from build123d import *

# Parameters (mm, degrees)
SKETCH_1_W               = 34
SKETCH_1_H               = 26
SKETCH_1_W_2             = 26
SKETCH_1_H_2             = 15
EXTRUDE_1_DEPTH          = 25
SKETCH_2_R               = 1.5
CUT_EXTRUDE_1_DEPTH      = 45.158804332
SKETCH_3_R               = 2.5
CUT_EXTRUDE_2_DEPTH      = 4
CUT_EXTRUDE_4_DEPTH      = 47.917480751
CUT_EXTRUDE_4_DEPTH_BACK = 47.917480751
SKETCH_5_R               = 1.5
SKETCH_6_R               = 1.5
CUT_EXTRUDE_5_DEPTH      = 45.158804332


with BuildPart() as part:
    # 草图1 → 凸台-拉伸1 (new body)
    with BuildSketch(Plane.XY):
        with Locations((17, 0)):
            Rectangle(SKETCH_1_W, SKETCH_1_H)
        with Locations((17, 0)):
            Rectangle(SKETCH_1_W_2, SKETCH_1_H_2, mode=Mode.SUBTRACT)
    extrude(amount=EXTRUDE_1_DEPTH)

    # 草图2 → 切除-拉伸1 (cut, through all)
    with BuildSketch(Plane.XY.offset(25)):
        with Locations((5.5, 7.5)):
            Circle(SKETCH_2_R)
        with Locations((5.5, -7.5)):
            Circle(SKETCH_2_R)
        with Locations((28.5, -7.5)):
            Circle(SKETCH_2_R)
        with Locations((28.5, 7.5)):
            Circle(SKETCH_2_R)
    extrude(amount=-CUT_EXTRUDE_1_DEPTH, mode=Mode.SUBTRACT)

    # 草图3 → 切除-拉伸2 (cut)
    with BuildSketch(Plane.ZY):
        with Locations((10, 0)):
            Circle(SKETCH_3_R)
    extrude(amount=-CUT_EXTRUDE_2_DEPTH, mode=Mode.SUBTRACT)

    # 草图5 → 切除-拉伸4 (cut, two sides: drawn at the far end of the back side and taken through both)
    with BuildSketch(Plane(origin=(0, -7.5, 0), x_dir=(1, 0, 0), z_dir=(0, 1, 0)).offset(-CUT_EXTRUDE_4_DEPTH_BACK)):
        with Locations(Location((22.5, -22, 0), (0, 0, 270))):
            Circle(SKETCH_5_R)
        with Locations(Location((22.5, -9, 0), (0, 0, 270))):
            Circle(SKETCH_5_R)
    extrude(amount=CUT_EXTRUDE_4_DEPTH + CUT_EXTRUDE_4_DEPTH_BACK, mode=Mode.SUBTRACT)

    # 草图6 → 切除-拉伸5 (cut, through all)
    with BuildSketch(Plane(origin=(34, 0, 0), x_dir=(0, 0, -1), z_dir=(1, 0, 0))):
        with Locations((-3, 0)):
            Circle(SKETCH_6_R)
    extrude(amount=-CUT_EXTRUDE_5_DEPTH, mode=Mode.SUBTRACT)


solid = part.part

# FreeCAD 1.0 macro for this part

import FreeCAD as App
import Part
import Sketcher
from FreeCAD import Vector
Q = App.Units.Quantity

doc = App.newDocument("Part")
body = doc.addObject("PartDesign::Body", "Body")

# Sketch on XY plane
sketch1 = body.newObject("Sketcher::SketchObject", "Sketch")
sketch1.AttachmentSupport = (doc.getObject("XY_Plane"), [""])
sketch1.MapMode = "FlatFace"
sketch1.addGeometry(Part.LineSegment(Vector(0, 13, 0), Vector(0, -13, 0)), False)
sketch1.addGeometry(Part.LineSegment(Vector(0, -13, 0), Vector(34, -13, 0)), False)
sketch1.addGeometry(Part.LineSegment(Vector(34, -13, 0), Vector(34, 13, 0)), False)
sketch1.addGeometry(Part.LineSegment(Vector(34, 13, 0), Vector(0, 13, 0)), False)
sketch1.addGeometry(Part.LineSegment(Vector(30, -7.5, 0), Vector(4, -7.5, 0)), False)
sketch1.addGeometry(Part.LineSegment(Vector(4, -7.5, 0), Vector(4, 7.5, 0)), False)
sketch1.addGeometry(Part.LineSegment(Vector(4, 7.5, 0), Vector(30, 7.5, 0)), False)
sketch1.addGeometry(Part.LineSegment(Vector(30, 7.5, 0), Vector(30, -7.5, 0)), False)
sketch1.addConstraint(Sketcher.Constraint("Coincident", 0, 2, 1, 1))
sketch1.addConstraint(Sketcher.Constraint("Coincident", 1, 2, 2, 1))
sketch1.addConstraint(Sketcher.Constraint("Coincident", 2, 2, 3, 1))
sketch1.addConstraint(Sketcher.Constraint("Coincident", 3, 2, 0, 1))
sketch1.addConstraint(Sketcher.Constraint("Coincident", 4, 2, 5, 1))
sketch1.addConstraint(Sketcher.Constraint("Coincident", 5, 2, 6, 1))
sketch1.addConstraint(Sketcher.Constraint("Coincident", 6, 2, 7, 1))
sketch1.addConstraint(Sketcher.Constraint("Coincident", 7, 2, 4, 1))
sketch1.addConstraint(Sketcher.Constraint("Vertical", 0))
sketch1.addConstraint(Sketcher.Constraint("Horizontal", 1))
sketch1.addConstraint(Sketcher.Constraint("Vertical", 2))
sketch1.addConstraint(Sketcher.Constraint("Horizontal", 3))
sketch1.addConstraint(Sketcher.Constraint("Horizontal", 4))
sketch1.addConstraint(Sketcher.Constraint("Vertical", 5))
sketch1.addConstraint(Sketcher.Constraint("Horizontal", 6))
sketch1.addConstraint(Sketcher.Constraint("Vertical", 7))
sketch1.addConstraint(Sketcher.Constraint("Symmetric", 0, 2, 3, 2, -1, 1))
sketch1.addConstraint(Sketcher.Constraint("Equal", 6, 0))
sketch1.addConstraint(Sketcher.Constraint("DistanceX", 1, 1, 1, 2, Q("34 mm")))
sketch1.addConstraint(Sketcher.Constraint("DistanceX", 4, 2, 4, 1, Q("26 mm")))
sketch1.addConstraint(Sketcher.Constraint("DistanceY", 5, 1, 5, 2, Q("15 mm")))
sketch1.addConstraint(Sketcher.Constraint("DistanceX", -1, 1, 4, 2, Q("4 mm")))
sketch1.addConstraint(Sketcher.Constraint("DistanceY", 4, 2, -1, 1, Q("7.5 mm")))
pad1 = body.newObject("PartDesign::Pad", "Pad")
pad1.Profile = sketch1
pad1.Length = 25

# Sketch on XY plane
sketch2 = body.newObject("Sketcher::SketchObject", "Sketch001")
sketch2.AttachmentSupport = (doc.getObject("XY_Plane"), [""])
sketch2.MapMode = "FlatFace"
sketch2.AttachmentOffset = App.Placement(Vector(0, 0, 25), App.Rotation())
sketch2.addGeometry(Part.Circle(Vector(5.5, 7.5, 0), Vector(0, 0, 1), 1.5), False)
sketch2.addGeometry(Part.Circle(Vector(5.5, -7.5, 0), Vector(0, 0, 1), 1.5), False)
sketch2.addGeometry(Part.Circle(Vector(28.5, -7.5, 0), Vector(0, 0, 1), 1.5), False)
sketch2.addGeometry(Part.Circle(Vector(28.5, 7.5, 0), Vector(0, 0, 1), 1.5), False)
sketch2.addConstraint(Sketcher.Constraint("Equal", 0, 1))
sketch2.addConstraint(Sketcher.Constraint("Equal", 1, 2))
sketch2.addConstraint(Sketcher.Constraint("Equal", 2, 3))
sketch2.addConstraint(Sketcher.Constraint("Symmetric", 0, 3, 1, 3, -1))
sketch2.addConstraint(Sketcher.Constraint("Symmetric", 2, 3, 3, 3, -1))
sketch2.addConstraint(Sketcher.Constraint("Horizontal", 1, 3, 2, 3))
sketch2.addConstraint(Sketcher.Constraint("Diameter", 0, Q("3 mm")))
sketch2.addConstraint(Sketcher.Constraint("DistanceY", 1, 3, 0, 3, Q("15 mm")))
sketch2.addConstraint(Sketcher.Constraint("DistanceX", 1, 3, 2, 3, Q("23 mm")))
sketch2.addConstraint(Sketcher.Constraint("DistanceX", -1, 1, 0, 3, Q("5.5 mm")))
pocket1 = body.newObject("PartDesign::Pocket", "Pocket")
pocket1.Profile = sketch2
pocket1.Type = "ThroughAll"

# Sketch on YZ plane
sketch3 = body.newObject("Sketcher::SketchObject", "Sketch002")
sketch3.AttachmentSupport = (doc.getObject("YZ_Plane"), [""])
sketch3.MapMode = "FlatFace"
sketch3.addGeometry(Part.Circle(Vector(0, 10, 0), Vector(0, 0, 1), 2.5), False)
sketch3.addConstraint(Sketcher.Constraint("PointOnObject", 0, 3, -2))
sketch3.addConstraint(Sketcher.Constraint("Diameter", 0, Q("5 mm")))
sketch3.addConstraint(Sketcher.Constraint("DistanceY", -1, 1, 0, 3, Q("10 mm")))
pocket2 = body.newObject("PartDesign::Pocket", "Pocket001")
pocket2.Profile = sketch3
pocket2.Length = 4
pocket2.Reversed = True

# Sketch on XZ plane
sketch4 = body.newObject("Sketcher::SketchObject", "Sketch003")
sketch4.AttachmentSupport = (doc.getObject("XZ_Plane"), [""])
sketch4.MapMode = "FlatFace"
sketch4.AttachmentOffset = App.Placement(Vector(0, 0, 7.5), App.Rotation())
sketch4.addGeometry(Part.Circle(Vector(22.5, 22, 0), Vector(0, 0, 1), 1.5), False)
sketch4.addGeometry(Part.Circle(Vector(22.5, 9, 0), Vector(0, 0, 1), 1.5), False)
sketch4.addConstraint(Sketcher.Constraint("Equal", 0, 1))
sketch4.addConstraint(Sketcher.Constraint("Vertical", 0, 3, 1, 3))
sketch4.addConstraint(Sketcher.Constraint("Diameter", 0, Q("3 mm")))
sketch4.addConstraint(Sketcher.Constraint("DistanceY", -1, 1, 0, 3, Q("22 mm")))
sketch4.addConstraint(Sketcher.Constraint("DistanceY", -1, 1, 1, 3, Q("9 mm")))
sketch4.addConstraint(Sketcher.Constraint("DistanceX", -1, 1, 0, 3, Q("22.5 mm")))
pocket3 = body.newObject("PartDesign::Pocket", "Pocket002")
pocket3.Profile = sketch4
pocket3.Type = "ThroughAll"
pocket3.Midplane = True

# Sketch on YZ plane
sketch5 = body.newObject("Sketcher::SketchObject", "Sketch004")
sketch5.AttachmentSupport = (doc.getObject("YZ_Plane"), [""])
sketch5.MapMode = "FlatFace"
sketch5.AttachmentOffset = App.Placement(Vector(0, 0, 34), App.Rotation())
sketch5.addGeometry(Part.Circle(Vector(0, 3, 0), Vector(0, 0, 1), 1.5), False)
sketch5.addConstraint(Sketcher.Constraint("PointOnObject", 0, 3, -2))
sketch5.addConstraint(Sketcher.Constraint("Diameter", 0, Q("3 mm")))
sketch5.addConstraint(Sketcher.Constraint("DistanceY", -1, 1, 0, 3, Q("3 mm")))
pocket4 = body.newObject("PartDesign::Pocket", "Pocket003")
pocket4.Profile = sketch5
pocket4.Type = "ThroughAll"

doc.recompute()
